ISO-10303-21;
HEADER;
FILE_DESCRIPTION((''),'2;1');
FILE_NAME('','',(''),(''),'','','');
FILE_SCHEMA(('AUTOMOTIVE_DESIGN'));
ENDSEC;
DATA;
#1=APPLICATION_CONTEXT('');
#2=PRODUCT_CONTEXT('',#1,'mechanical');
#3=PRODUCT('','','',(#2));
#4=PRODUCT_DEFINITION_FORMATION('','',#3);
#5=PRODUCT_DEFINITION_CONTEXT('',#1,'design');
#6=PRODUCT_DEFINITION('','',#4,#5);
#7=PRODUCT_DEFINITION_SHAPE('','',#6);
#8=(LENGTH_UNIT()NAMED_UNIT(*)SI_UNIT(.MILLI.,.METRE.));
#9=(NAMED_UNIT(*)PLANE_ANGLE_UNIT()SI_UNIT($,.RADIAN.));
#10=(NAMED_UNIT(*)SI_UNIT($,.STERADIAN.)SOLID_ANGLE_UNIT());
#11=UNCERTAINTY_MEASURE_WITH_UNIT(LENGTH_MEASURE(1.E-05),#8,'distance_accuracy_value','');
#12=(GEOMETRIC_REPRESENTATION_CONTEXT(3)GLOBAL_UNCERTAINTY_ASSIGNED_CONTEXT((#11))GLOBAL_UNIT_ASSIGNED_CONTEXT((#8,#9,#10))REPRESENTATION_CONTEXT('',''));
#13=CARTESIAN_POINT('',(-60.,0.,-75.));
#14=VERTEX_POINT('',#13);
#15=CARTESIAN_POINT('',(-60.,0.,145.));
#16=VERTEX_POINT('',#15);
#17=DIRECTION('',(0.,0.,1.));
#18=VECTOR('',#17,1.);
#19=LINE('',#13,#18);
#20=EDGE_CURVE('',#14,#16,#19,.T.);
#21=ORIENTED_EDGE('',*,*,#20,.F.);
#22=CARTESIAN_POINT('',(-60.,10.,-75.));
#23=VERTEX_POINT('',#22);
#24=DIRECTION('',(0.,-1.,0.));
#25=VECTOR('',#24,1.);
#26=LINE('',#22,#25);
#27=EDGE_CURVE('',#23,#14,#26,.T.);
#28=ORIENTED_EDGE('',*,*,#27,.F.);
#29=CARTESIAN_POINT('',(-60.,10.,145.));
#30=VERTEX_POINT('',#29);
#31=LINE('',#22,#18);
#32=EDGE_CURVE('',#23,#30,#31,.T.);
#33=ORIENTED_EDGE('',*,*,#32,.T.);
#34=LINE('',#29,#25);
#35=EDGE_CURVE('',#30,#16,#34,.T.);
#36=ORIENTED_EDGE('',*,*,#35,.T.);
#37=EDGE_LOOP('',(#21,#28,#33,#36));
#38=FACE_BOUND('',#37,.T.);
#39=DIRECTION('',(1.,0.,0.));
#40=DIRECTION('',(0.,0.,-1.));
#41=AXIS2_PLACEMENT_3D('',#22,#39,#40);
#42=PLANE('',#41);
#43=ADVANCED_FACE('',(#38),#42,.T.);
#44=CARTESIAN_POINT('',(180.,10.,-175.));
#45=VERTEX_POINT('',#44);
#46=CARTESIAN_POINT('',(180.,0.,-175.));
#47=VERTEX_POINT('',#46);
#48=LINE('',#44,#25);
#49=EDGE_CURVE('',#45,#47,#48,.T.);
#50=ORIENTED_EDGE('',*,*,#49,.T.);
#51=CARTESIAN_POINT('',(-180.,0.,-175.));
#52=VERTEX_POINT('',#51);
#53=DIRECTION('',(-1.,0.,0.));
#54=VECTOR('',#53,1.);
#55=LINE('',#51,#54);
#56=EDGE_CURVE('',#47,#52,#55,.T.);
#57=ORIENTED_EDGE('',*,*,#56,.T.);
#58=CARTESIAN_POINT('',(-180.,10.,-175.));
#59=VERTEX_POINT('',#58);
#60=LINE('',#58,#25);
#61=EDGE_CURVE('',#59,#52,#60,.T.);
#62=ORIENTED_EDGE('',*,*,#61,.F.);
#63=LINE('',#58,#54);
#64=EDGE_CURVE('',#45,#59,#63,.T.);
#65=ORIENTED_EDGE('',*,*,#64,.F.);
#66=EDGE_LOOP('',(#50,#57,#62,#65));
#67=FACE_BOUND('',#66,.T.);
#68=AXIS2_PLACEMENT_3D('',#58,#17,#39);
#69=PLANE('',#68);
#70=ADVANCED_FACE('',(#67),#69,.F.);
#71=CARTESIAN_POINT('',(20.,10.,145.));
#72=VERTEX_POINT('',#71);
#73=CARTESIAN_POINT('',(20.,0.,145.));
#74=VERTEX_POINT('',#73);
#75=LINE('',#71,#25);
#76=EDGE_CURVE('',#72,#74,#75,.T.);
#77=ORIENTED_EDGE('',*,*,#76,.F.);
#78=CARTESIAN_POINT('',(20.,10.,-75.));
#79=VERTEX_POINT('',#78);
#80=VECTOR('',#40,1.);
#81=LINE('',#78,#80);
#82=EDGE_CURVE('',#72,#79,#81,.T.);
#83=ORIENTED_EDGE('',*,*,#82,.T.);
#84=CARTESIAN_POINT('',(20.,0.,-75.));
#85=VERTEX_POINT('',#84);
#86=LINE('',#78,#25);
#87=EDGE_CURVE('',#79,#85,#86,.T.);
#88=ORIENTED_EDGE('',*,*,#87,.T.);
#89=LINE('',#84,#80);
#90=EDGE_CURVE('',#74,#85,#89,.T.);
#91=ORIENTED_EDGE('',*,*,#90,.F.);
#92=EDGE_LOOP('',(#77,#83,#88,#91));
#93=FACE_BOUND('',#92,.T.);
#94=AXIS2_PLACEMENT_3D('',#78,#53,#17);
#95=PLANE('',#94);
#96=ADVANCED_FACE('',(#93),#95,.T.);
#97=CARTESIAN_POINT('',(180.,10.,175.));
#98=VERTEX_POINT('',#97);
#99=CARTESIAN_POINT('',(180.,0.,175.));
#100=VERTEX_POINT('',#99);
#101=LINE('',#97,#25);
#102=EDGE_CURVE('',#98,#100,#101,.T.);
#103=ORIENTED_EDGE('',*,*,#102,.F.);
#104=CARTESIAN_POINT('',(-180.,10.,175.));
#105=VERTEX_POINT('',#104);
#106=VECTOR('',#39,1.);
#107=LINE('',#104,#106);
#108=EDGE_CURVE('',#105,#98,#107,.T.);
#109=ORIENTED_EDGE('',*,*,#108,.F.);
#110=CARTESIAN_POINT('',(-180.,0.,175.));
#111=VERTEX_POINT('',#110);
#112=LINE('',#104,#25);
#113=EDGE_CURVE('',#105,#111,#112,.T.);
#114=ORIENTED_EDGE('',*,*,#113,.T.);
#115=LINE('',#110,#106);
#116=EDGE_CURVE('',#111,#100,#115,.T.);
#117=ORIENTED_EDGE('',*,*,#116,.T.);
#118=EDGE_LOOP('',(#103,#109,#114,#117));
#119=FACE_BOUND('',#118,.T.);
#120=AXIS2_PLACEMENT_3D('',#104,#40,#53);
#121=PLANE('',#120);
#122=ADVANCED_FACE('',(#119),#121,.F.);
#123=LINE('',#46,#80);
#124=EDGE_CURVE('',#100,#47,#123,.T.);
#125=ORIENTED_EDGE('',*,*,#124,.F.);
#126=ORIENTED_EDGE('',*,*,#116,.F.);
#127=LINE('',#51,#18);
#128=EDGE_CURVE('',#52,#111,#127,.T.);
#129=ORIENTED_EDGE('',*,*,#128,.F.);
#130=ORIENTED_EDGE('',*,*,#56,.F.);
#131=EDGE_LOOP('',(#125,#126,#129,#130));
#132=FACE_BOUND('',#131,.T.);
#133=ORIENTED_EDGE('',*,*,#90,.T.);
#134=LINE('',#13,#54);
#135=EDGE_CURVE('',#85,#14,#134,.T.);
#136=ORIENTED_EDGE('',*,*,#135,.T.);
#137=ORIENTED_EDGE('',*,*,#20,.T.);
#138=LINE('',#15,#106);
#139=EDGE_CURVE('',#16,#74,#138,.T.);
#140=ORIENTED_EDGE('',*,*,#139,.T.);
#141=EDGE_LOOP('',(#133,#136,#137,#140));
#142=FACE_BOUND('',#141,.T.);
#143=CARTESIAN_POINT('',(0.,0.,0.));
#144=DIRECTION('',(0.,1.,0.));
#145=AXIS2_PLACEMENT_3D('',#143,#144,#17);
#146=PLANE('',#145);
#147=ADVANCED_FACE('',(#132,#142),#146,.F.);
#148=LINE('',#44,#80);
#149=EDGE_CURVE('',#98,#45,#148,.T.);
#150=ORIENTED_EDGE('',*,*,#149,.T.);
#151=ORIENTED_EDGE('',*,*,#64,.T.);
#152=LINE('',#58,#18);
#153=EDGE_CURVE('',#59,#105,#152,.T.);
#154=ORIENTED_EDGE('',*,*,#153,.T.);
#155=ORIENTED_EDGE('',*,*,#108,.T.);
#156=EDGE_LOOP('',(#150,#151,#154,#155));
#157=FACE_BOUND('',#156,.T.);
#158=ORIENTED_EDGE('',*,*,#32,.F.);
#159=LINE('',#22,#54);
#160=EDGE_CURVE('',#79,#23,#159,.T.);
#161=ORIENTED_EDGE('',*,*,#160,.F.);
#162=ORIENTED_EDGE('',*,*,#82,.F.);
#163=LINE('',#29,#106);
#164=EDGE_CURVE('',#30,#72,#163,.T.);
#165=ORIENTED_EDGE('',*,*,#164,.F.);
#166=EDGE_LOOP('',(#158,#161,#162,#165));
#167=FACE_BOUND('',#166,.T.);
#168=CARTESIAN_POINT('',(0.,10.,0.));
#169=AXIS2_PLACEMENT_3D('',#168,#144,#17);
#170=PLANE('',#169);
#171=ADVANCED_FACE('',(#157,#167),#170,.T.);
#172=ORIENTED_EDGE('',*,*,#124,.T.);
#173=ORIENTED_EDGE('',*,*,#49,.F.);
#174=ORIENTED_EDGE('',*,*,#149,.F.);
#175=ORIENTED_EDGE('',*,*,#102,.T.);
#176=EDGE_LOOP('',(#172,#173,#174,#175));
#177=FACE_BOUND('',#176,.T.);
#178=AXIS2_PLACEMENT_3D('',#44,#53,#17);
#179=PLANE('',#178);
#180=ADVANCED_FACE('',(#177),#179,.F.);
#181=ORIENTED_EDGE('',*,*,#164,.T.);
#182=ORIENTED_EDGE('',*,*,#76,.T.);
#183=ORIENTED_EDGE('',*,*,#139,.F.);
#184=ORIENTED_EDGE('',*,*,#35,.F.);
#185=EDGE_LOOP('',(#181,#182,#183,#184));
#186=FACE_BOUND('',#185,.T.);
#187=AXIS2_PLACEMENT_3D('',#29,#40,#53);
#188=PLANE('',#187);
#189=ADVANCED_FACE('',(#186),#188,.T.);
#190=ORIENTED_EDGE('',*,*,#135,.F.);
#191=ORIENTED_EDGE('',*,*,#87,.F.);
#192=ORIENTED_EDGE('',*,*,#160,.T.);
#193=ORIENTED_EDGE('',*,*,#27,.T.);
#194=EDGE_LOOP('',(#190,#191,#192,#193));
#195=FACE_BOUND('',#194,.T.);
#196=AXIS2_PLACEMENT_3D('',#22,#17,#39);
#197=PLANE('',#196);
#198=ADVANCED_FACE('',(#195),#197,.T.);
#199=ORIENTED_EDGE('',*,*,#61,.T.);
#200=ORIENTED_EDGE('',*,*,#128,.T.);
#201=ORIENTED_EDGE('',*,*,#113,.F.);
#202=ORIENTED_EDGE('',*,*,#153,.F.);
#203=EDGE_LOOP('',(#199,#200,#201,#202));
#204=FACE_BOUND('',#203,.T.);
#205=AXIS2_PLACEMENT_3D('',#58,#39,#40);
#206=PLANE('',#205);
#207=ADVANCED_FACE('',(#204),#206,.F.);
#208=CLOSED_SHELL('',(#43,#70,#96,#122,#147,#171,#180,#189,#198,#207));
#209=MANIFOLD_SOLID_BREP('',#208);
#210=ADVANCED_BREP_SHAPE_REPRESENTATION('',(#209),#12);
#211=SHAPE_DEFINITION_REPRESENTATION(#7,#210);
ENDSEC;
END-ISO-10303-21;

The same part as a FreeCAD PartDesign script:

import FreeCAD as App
import Part
import Sketcher

V = App.Vector
Q = App.Units.Quantity


def add_polygon(sketch, points):
    """Adds a closed chain of lines whose ends are joined by coincident constraints."""
    first, n = sketch.GeometryCount, len(points)
    for a, b in zip(points, points[1:] + points[:1]):
        sketch.addGeometry(Part.LineSegment(App.Vector(*a, 0), App.Vector(*b, 0)), False)
    for i in range(n):
        sketch.addConstraint(Sketcher.Constraint("Coincident", first + i, 2, first + (i + 1) % n, 1))

doc = App.newDocument("Part")
params = doc.addObject("Spreadsheet::Sheet", "Params")
for row, (alias, value) in enumerate([
    ("sketch1_width", "360 mm"),
    ("sketch1_width2", "80 mm"),
    ("sketch1_height", "350 mm"),
    ("sketch1_height2", "220 mm"),
    ("pad1_length", "10 mm"),
], start=1):
    params.set(f"A{row}", alias)
    params.set(f"B{row}", "=" + value)
    params.setAlias(f"B{row}", alias)

body = doc.addObject("PartDesign::Body", "Body")

# Sketch on XZ plane
sketch1 = body.newObject("Sketcher::SketchObject", "Sketch")
sketch1.AttachmentSupport = (doc.getObject("XZ_Plane"), [""])
sketch1.MapMode = "FlatFace"
add_polygon(sketch1, [(-180, -175), (-180, 175), (180, 175), (180, -175)])  # lines 0-3
add_polygon(sketch1, [(20, 145), (-60, 145), (-60, -75), (20, -75)])  # lines 4-7
sketch1.addConstraint([
    Sketcher.Constraint("Vertical", 0),
    Sketcher.Constraint("Horizontal", 1),
    Sketcher.Constraint("Vertical", 2),
    Sketcher.Constraint("Horizontal", 3),
    Sketcher.Constraint("Horizontal", 4),
    Sketcher.Constraint("Vertical", 5),
    Sketcher.Constraint("Horizontal", 6),
    Sketcher.Constraint("Vertical", 7),
    Sketcher.Constraint("Symmetric", 0, 2, 2, 2, -1, 1),
    Sketcher.Constraint("DistanceX", 1, 1, 1, 2, Q("360 mm")),
    Sketcher.Constraint("DistanceX", 4, 2, 4, 1, Q("80 mm")),
    Sketcher.Constraint("DistanceY", 0, 1, 0, 2, Q("350 mm")),
    Sketcher.Constraint("DistanceY", 5, 2, 5, 1, Q("220 mm")),
    Sketcher.Constraint("DistanceX", 4, 2, -1, 1, Q("60 mm")),
    Sketcher.Constraint("DistanceY", -1, 1, 4, 2, Q("145 mm")),
])
sketch1.setExpression("Constraints[17]", "Params.sketch1_width")
sketch1.setExpression("Constraints[18]", "Params.sketch1_width2")
sketch1.setExpression("Constraints[19]", "Params.sketch1_height")
sketch1.setExpression("Constraints[20]", "Params.sketch1_height2")
pad1 = body.newObject("PartDesign::Pad", "Pad")
pad1.Profile = sketch1
pad1.setExpression("Length", "Params.pad1_length")
pad1.Reversed = True

doc.recompute()
